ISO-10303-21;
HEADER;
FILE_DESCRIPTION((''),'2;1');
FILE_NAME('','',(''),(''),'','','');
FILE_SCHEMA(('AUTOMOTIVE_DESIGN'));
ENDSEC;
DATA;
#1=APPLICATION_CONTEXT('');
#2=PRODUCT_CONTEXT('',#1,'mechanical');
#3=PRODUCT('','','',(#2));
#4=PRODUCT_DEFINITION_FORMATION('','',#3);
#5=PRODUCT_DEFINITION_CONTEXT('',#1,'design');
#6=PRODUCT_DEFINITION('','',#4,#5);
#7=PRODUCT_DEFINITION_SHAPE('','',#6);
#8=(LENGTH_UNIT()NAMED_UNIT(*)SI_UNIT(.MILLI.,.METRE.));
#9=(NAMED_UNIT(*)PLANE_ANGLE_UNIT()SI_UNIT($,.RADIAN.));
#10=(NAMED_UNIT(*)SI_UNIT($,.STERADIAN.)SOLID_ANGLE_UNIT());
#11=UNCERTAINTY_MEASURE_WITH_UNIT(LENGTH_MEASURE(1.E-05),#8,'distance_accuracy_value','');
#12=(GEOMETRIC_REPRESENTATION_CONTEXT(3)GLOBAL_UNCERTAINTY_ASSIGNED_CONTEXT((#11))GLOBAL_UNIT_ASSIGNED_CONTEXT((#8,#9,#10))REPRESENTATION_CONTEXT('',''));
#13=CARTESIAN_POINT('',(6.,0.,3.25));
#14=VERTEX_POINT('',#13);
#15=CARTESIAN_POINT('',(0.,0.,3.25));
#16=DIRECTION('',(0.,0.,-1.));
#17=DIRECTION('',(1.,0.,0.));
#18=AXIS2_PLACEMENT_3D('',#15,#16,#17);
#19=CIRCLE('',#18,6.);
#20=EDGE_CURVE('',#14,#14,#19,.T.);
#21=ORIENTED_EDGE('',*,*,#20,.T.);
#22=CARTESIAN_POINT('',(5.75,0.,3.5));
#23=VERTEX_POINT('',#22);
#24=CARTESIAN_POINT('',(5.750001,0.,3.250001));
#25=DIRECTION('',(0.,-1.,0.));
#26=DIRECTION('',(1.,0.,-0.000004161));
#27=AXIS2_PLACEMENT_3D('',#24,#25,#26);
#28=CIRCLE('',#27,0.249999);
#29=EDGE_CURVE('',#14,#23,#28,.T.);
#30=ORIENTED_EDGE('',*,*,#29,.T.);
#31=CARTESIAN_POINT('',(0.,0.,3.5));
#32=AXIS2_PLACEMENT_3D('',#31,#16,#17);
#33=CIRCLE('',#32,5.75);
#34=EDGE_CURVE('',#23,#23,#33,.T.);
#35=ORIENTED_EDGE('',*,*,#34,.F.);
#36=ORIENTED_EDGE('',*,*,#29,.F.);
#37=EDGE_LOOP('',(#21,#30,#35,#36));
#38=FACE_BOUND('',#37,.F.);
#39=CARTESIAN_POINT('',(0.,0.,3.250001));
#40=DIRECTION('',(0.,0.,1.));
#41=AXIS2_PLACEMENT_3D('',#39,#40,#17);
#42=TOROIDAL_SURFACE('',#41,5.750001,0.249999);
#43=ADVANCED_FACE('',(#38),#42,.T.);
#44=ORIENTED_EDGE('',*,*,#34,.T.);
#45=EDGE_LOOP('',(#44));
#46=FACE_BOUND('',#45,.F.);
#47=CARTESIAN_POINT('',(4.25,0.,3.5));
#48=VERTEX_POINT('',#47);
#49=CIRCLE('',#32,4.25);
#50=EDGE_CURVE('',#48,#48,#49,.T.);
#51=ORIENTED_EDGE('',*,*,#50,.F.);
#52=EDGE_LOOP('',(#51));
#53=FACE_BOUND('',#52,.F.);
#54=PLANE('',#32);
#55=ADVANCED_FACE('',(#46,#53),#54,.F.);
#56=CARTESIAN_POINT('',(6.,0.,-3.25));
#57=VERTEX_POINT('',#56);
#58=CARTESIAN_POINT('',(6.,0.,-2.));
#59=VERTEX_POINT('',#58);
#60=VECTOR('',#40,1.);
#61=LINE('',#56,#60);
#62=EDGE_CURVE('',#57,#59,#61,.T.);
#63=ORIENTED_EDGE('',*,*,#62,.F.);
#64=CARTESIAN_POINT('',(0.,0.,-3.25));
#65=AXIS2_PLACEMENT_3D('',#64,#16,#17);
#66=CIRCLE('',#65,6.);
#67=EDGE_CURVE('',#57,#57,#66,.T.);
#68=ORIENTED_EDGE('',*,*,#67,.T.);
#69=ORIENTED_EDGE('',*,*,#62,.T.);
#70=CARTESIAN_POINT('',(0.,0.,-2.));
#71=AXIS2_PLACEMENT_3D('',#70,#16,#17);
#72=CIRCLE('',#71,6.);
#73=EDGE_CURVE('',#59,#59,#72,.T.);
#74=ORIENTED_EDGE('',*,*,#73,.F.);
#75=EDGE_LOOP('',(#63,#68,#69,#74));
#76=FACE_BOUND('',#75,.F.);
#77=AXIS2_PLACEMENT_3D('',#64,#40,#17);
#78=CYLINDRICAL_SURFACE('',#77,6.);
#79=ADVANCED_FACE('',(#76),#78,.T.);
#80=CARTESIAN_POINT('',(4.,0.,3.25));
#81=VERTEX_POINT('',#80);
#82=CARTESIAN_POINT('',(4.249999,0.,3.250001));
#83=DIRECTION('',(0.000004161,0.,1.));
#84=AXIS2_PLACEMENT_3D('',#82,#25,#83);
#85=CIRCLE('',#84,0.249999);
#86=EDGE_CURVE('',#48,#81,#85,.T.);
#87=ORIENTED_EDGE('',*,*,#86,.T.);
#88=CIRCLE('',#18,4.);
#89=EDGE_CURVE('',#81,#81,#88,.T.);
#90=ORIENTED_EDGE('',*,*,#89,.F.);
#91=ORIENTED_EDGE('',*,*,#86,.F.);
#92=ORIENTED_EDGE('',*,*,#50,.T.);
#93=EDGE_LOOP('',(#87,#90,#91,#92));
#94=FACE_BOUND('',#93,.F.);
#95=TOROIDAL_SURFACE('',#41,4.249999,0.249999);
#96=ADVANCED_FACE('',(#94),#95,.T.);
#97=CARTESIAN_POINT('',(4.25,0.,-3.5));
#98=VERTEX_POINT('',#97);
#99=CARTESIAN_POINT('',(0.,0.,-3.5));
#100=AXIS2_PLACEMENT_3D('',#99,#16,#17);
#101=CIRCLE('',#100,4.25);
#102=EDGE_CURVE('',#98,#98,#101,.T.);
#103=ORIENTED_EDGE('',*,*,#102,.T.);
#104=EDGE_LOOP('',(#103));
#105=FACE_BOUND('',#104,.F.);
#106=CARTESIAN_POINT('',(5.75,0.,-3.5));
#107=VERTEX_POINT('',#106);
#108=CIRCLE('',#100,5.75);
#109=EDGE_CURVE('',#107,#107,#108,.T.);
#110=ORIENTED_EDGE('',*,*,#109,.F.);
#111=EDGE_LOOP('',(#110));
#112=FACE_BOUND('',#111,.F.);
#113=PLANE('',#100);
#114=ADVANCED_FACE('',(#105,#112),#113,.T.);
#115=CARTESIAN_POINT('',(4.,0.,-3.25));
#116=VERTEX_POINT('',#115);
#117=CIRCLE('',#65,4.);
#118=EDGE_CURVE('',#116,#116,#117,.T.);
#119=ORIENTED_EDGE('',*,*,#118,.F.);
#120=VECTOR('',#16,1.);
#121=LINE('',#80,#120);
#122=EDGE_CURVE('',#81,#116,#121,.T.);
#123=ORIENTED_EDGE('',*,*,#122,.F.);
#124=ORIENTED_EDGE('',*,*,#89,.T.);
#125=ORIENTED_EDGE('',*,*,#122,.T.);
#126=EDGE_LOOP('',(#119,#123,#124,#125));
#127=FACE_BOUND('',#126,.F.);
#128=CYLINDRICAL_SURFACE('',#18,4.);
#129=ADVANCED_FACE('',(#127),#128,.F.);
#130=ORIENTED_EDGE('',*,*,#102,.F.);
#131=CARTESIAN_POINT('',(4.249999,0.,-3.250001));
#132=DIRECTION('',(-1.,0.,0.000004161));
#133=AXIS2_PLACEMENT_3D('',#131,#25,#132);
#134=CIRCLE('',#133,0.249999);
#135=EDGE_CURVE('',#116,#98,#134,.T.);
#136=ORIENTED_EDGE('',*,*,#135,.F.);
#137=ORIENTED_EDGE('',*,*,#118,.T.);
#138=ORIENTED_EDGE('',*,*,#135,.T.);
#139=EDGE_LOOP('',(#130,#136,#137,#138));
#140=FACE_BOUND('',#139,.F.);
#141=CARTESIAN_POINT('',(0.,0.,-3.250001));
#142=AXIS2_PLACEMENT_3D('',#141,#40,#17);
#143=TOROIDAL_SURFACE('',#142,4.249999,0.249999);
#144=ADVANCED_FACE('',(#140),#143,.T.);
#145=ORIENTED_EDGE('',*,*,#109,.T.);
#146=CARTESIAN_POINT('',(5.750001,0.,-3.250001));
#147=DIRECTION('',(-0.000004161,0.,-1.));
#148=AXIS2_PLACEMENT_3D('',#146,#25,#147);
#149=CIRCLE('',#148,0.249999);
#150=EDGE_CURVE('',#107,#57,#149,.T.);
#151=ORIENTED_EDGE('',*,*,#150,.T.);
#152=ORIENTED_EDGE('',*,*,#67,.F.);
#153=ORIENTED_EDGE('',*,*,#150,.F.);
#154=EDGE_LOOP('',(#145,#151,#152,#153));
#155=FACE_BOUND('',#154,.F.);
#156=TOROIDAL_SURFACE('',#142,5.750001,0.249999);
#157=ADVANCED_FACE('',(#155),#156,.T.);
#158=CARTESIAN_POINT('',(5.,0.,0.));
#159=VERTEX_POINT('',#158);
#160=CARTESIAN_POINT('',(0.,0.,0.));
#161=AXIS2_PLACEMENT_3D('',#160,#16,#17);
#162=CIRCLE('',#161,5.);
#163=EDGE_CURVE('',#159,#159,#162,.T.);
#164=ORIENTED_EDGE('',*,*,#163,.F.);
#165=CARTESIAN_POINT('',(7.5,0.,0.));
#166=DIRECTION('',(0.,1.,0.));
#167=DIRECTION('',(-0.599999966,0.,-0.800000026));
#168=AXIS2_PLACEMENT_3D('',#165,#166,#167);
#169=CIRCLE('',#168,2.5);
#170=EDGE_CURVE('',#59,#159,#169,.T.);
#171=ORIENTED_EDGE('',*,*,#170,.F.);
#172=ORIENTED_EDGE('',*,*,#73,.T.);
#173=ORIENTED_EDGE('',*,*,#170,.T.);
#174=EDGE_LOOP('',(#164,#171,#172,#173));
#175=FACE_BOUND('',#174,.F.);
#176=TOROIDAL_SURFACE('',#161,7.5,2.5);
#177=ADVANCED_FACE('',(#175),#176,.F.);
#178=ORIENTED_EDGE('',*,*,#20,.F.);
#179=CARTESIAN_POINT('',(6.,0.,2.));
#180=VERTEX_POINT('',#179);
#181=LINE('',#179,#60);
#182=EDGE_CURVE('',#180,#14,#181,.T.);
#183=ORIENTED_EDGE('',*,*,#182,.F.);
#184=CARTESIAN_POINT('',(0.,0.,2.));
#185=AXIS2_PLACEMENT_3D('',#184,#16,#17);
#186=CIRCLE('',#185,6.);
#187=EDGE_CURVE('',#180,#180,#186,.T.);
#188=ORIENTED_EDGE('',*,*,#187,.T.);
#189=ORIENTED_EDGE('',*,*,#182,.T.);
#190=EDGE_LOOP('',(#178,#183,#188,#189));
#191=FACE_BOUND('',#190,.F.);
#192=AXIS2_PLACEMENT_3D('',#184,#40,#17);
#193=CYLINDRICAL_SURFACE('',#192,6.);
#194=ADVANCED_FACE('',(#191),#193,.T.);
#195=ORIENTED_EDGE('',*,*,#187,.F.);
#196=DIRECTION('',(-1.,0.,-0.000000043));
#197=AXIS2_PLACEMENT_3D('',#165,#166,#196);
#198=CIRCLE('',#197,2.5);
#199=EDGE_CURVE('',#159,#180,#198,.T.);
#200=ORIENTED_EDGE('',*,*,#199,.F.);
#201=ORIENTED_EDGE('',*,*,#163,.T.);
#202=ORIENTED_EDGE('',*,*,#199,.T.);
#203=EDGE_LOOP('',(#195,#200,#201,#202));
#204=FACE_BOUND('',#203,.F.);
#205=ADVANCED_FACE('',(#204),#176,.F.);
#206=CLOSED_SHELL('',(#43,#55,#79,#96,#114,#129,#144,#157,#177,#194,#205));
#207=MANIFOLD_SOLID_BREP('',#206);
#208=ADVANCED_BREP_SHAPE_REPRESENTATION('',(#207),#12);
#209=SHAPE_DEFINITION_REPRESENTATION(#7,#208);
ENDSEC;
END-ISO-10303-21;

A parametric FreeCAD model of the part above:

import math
import FreeCAD as App
import Part
import Sketcher
Q = App.Units.Quantity

doc = App.newDocument("Part")
body = doc.addObject("PartDesign::Body", "Body")

# Sketch on XZ plane
sketch1 = body.newObject("Sketcher::SketchObject", "Sketch")
sketch1.AttachmentSupport = (doc.getObject("XZ_Plane"), [""])
sketch1.MapMode = "FlatFace"
sketch1.addGeometry([
    Part.LineSegment(App.Vector(4, 3.25, 0), App.Vector(4, -3.25, 0)),  # 0
    Part.ArcOfCircle(Part.Circle(App.Vector(4.25, -3.25, 0), App.Vector(0, 0, 1), 0.25), math.radians(180), math.radians(270)),  # 1
    Part.LineSegment(App.Vector(4.25, -3.5, 0), App.Vector(5.75, -3.5, 0)),  # 2
    Part.ArcOfCircle(Part.Circle(App.Vector(5.75, -3.25, 0), App.Vector(0, 0, 1), 0.25), math.radians(-90), math.radians(0)),  # 3
    Part.LineSegment(App.Vector(6, -3.25, 0), App.Vector(6, -2, 0)),  # 4
    Part.ArcOfCircle(Part.Circle(App.Vector(7.5, 0, 0), App.Vector(0, 0, 1), 2.5), math.radians(180), math.radians(233)),  # 5
    Part.ArcOfCircle(Part.Circle(App.Vector(7.5, 0, 0), App.Vector(0, 0, 1), 2.5), math.radians(127), math.radians(180)),  # 6
    Part.LineSegment(App.Vector(6, 2, 0), App.Vector(6, 3.25, 0)),  # 7
    Part.ArcOfCircle(Part.Circle(App.Vector(5.75, 3.25, 0), App.Vector(0, 0, 1), 0.25), math.radians(0), math.radians(90)),  # 8
    Part.LineSegment(App.Vector(5.75, 3.5, 0), App.Vector(4.25, 3.5, 0)),  # 9
    Part.ArcOfCircle(Part.Circle(App.Vector(4.25, 3.25, 0), App.Vector(0, 0, 1), 0.25), math.radians(90), math.radians(180)),  # 10
], False)
sketch1.addConstraint([
    Sketcher.Constraint("Coincident", 0, 2, 1, 1),
    Sketcher.Constraint("Coincident", 1, 2, 2, 1),
    Sketcher.Constraint("Coincident", 2, 2, 3, 1),
    Sketcher.Constraint("Coincident", 3, 2, 4, 1),
    Sketcher.Constraint("Coincident", 4, 2, 5, 2),
    Sketcher.Constraint("Tangent", 5, 1, 6, 2),
    Sketcher.Constraint("Coincident", 6, 1, 7, 1),
    Sketcher.Constraint("Coincident", 7, 2, 8, 1),
    Sketcher.Constraint("Coincident", 8, 2, 9, 1),
    Sketcher.Constraint("Coincident", 9, 2, 10, 1),
    Sketcher.Constraint("Coincident", 10, 2, 0, 1),
    Sketcher.Constraint("Vertical", 0),
    Sketcher.Constraint("Horizontal", 2),
    Sketcher.Constraint("Vertical", 4),
    Sketcher.Constraint("Vertical", 7),
    Sketcher.Constraint("Horizontal", 9),
    Sketcher.Constraint("Equal", 1, 3),
    Sketcher.Constraint("Equal", 5, 6),
    Sketcher.Constraint("Equal", 3, 8),
    Sketcher.Constraint("Equal", 8, 10),
    Sketcher.Constraint("Symmetric", 3, 3, 8, 3, -1),
    Sketcher.Constraint("PointOnObject", 5, 3, -1),
    Sketcher.Constraint("PointOnObject", 5, 1, -1),
    Sketcher.Constraint("Horizontal", 3, 3, 0, 2),
    Sketcher.Constraint("Horizontal", 0, 2, 3, 2),
    Sketcher.Constraint("Horizontal", 10, 3, 7, 2),
    Sketcher.Constraint("Horizontal", 7, 2, 10, 2),
    Sketcher.Constraint("Vertical", 10, 3, 1, 2),
    Sketcher.Constraint("Vertical", 8, 3, 2, 2),
    Sketcher.Constraint("Vertical", 2, 2, 8, 2),
    Sketcher.Constraint("Vertical", 1, 2, 9, 2),
    Sketcher.Constraint("Radius", 5, Q("2.5 mm")),
    Sketcher.Constraint("Radius", 1, Q("0.249999 mm")),
    Sketcher.Constraint("DistanceX", 2, 1, 2, 2, Q("1.5 mm")),
    Sketcher.Constraint("DistanceY", 0, 2, 0, 1, Q("6.5 mm")),
    Sketcher.Constraint("DistanceX", -1, 1, 0, 2, Q("4 mm")),
    Sketcher.Constraint("DistanceY", 4, 2, -1, 1, Q("2 mm")),
])
revolution = body.newObject("PartDesign::Revolution", "Revolution")
revolution.Profile = sketch1
revolution.ReferenceAxis = (sketch1, ["V_Axis"])
revolution.Angle = 360

doc.recompute()
